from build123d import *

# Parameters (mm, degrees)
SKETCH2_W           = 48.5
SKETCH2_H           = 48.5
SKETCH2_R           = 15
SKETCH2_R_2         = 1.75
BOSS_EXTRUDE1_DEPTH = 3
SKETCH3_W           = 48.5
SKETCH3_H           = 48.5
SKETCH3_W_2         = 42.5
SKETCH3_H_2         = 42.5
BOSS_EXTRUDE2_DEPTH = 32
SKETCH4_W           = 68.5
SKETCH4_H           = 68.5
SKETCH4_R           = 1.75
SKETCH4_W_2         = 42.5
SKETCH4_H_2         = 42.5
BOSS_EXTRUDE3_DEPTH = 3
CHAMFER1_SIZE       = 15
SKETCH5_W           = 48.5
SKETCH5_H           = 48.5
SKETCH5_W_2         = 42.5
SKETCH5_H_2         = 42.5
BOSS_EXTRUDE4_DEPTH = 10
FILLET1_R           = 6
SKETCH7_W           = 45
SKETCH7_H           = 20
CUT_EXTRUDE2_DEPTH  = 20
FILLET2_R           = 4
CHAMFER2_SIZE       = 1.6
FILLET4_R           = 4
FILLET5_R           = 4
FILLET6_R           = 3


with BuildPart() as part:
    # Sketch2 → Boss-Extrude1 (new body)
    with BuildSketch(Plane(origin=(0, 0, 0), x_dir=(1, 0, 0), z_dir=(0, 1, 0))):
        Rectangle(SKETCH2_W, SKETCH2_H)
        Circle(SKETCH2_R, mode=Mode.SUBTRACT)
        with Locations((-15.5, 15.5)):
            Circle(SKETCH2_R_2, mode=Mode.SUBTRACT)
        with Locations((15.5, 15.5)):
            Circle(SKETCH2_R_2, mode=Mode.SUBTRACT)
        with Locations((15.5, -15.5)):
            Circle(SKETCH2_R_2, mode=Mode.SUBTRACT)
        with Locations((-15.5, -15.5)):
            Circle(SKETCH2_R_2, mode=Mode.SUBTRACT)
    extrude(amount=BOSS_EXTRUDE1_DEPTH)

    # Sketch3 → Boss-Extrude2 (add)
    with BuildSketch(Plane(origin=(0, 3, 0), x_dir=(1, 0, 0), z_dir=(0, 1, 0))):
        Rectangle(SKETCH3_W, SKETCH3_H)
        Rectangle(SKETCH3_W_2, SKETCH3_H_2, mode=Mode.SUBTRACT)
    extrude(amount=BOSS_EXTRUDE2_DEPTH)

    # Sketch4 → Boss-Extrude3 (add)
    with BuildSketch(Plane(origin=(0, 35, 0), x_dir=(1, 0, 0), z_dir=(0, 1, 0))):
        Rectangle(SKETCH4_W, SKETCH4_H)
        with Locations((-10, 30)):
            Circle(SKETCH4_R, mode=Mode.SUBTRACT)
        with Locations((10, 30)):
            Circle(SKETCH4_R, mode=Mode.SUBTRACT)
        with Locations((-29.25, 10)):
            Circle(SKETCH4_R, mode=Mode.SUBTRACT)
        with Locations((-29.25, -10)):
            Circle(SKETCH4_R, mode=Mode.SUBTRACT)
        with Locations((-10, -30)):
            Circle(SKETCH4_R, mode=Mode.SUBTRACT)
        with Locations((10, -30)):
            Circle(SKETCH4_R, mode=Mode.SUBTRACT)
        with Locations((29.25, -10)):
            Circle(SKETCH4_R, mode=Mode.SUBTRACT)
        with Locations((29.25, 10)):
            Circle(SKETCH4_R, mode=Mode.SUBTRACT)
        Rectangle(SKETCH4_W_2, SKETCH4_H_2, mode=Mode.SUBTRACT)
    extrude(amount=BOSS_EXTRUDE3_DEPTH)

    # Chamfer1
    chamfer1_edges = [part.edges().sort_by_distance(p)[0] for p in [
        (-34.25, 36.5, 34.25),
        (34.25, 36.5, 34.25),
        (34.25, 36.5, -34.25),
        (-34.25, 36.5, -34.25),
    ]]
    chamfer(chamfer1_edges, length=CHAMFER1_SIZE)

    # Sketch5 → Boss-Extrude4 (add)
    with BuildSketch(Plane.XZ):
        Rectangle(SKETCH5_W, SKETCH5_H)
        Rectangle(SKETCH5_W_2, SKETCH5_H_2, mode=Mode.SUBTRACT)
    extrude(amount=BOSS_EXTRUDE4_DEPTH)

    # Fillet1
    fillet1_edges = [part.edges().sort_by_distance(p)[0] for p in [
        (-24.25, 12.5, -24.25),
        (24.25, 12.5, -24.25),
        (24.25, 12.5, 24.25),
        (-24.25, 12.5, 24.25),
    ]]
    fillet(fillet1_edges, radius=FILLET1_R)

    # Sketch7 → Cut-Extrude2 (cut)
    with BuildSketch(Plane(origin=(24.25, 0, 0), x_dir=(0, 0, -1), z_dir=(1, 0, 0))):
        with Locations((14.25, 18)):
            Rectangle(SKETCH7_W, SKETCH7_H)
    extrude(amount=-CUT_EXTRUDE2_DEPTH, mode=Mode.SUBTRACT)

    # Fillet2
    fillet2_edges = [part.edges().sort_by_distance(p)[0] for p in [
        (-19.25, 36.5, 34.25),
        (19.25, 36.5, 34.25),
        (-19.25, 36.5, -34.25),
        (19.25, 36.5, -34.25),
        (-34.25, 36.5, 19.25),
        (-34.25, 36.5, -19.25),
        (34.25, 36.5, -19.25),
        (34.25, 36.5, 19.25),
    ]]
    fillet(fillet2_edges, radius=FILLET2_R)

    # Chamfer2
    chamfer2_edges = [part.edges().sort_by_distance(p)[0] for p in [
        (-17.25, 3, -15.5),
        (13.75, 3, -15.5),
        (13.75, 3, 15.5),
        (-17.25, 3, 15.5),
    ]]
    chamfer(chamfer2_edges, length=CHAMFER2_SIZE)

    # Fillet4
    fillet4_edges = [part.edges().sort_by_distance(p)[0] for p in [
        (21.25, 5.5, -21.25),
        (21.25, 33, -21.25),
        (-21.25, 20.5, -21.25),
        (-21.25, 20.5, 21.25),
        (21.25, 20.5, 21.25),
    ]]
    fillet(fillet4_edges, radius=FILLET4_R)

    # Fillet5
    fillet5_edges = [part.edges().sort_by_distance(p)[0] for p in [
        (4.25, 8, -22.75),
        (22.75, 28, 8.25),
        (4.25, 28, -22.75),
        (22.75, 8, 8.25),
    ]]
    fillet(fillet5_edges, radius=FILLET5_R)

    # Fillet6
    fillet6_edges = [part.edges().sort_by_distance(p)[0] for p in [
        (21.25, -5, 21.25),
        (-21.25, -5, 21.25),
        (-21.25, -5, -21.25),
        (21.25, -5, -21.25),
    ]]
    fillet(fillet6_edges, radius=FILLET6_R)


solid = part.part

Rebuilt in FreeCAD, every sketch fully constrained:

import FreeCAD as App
import Part
import Sketcher
from FreeCAD import Vector
Q = App.Units.Quantity


def edges_at(feature, points):
    """Names of the edges that pass closest to the given points."""
    edges = feature.Shape.Edges
    near = lambda p: min(range(len(edges)), key=lambda i: edges[i].distToShape(Part.Vertex(*p))[0])
    return sorted({f"Edge{near(p) + 1}" for p in points})

doc = App.newDocument("Part")
body = doc.addObject("PartDesign::Body", "Body")

sketch1 = doc.addObject("Sketcher::SketchObject", "Sketch")
body.addObject(sketch1)
sketch1.AttachmentSupport = (doc.XZ_Plane, [""])
sketch1.MapMode = "FlatFace"
sketch1.addGeometry(Part.LineSegment(Vector(-24.25, -24.25, 0), Vector(-24.25, 24.25, 0)), False)
sketch1.addGeometry(Part.LineSegment(Vector(-24.25, 24.25, 0), Vector(24.25, 24.25, 0)), False)
sketch1.addGeometry(Part.LineSegment(Vector(24.25, 24.25, 0), Vector(24.25, -24.25, 0)), False)
sketch1.addGeometry(Part.LineSegment(Vector(24.25, -24.25, 0), Vector(-24.25, -24.25, 0)), False)
sketch1.addGeometry(Part.Circle(Vector(-15.5, 15.5, 0), Vector(0, 0, 1), 1.75), False)
sketch1.addGeometry(Part.Circle(Vector(15.5, 15.5, 0), Vector(0, 0, 1), 1.75), False)
sketch1.addGeometry(Part.Circle(Vector(-15.5, -15.5, 0), Vector(0, 0, 1), 1.75), False)
sketch1.addGeometry(Part.Circle(Vector(0, 0, 0), Vector(0, 0, 1), 15), False)
sketch1.addGeometry(Part.Circle(Vector(15.5, -15.5, 0), Vector(0, 0, 1), 1.75), False)
sketch1.addConstraint(Sketcher.Constraint("Coincident", 0, 2, 1, 1))
sketch1.addConstraint(Sketcher.Constraint("Coincident", 1, 2, 2, 1))
sketch1.addConstraint(Sketcher.Constraint("Coincident", 2, 2, 3, 1))
sketch1.addConstraint(Sketcher.Constraint("Coincident", 3, 2, 0, 1))
sketch1.addConstraint(Sketcher.Constraint("Vertical", 0))
sketch1.addConstraint(Sketcher.Constraint("Horizontal", 1))
sketch1.addConstraint(Sketcher.Constraint("Vertical", 2))
sketch1.addConstraint(Sketcher.Constraint("Horizontal", 3))
sketch1.addConstraint(Sketcher.Constraint("Coincident", 7, 3, -1, 1))
sketch1.addConstraint(Sketcher.Constraint("Equal", 4, 5))
sketch1.addConstraint(Sketcher.Constraint("Equal", 5, 6))
sketch1.addConstraint(Sketcher.Constraint("Equal", 6, 8))
sketch1.addConstraint(Sketcher.Constraint("Symmetric", 5, 3, 6, 3, -1, 1))
sketch1.addConstraint(Sketcher.Constraint("Symmetric", 4, 3, 8, 3, -1, 1))
sketch1.addConstraint(Sketcher.Constraint("Symmetric", 0, 2, 2, 2, -1, 1))
sketch1.addConstraint(Sketcher.Constraint("Symmetric", 4, 3, 5, 3, -2))
sketch1.addConstraint(Sketcher.Constraint("Equal", 3, 0))
sketch1.addConstraint(Sketcher.Constraint("Diameter", 7, Q("30 mm")))
sketch1.addConstraint(Sketcher.Constraint("Diameter", 4, Q("3.5 mm")))
sketch1.addConstraint(Sketcher.Constraint("DistanceX", 1, 1, 1, 2, Q("48.5 mm")))
sketch1.addConstraint(Sketcher.Constraint("DistanceX", 4, 3, 5, 3, Q("31 mm")))
sketch1.addConstraint(Sketcher.Constraint("DistanceY", 6, 3, 4, 3, Q("31 mm")))
pad1 = doc.addObject("PartDesign::Pad", "Pad")
body.addObject(pad1)
pad1.Profile = sketch1
pad1.Length = 3
pad1.Reversed = True

sketch2 = doc.addObject("Sketcher::SketchObject", "Sketch001")
body.addObject(sketch2)
sketch2.AttachmentSupport = (doc.XZ_Plane, [""])
sketch2.MapMode = "FlatFace"
sketch2.AttachmentOffset = App.Placement(Vector(0, 0, -3), App.Rotation())
sketch2.addGeometry(Part.LineSegment(Vector(-24.25, -24.25, 0), Vector(-24.25, 24.25, 0)), False)
sketch2.addGeometry(Part.LineSegment(Vector(-24.25, 24.25, 0), Vector(24.25, 24.25, 0)), False)
sketch2.addGeometry(Part.LineSegment(Vector(24.25, 24.25, 0), Vector(24.25, -24.25, 0)), False)
sketch2.addGeometry(Part.LineSegment(Vector(24.25, -24.25, 0), Vector(-24.25, -24.25, 0)), False)
sketch2.addGeometry(Part.LineSegment(Vector(21.25, 21.25, 0), Vector(-21.25, 21.25, 0)), False)
sketch2.addGeometry(Part.LineSegment(Vector(-21.25, 21.25, 0), Vector(-21.25, -21.25, 0)), False)
sketch2.addGeometry(Part.LineSegment(Vector(-21.25, -21.25, 0), Vector(21.25, -21.25, 0)), False)
sketch2.addGeometry(Part.LineSegment(Vector(21.25, -21.25, 0), Vector(21.25, 21.25, 0)), False)
sketch2.addConstraint(Sketcher.Constraint("Coincident", 0, 2, 1, 1))
sketch2.addConstraint(Sketcher.Constraint("Coincident", 1, 2, 2, 1))
sketch2.addConstraint(Sketcher.Constraint("Coincident", 2, 2, 3, 1))
sketch2.addConstraint(Sketcher.Constraint("Coincident", 3, 2, 0, 1))
sketch2.addConstraint(Sketcher.Constraint("Coincident", 4, 2, 5, 1))
sketch2.addConstraint(Sketcher.Constraint("Coincident", 5, 2, 6, 1))
sketch2.addConstraint(Sketcher.Constraint("Coincident", 6, 2, 7, 1))
sketch2.addConstraint(Sketcher.Constraint("Coincident", 7, 2, 4, 1))
sketch2.addConstraint(Sketcher.Constraint("Vertical", 0))
sketch2.addConstraint(Sketcher.Constraint("Horizontal", 1))
sketch2.addConstraint(Sketcher.Constraint("Vertical", 2))
sketch2.addConstraint(Sketcher.Constraint("Horizontal", 3))
sketch2.addConstraint(Sketcher.Constraint("Horizontal", 4))
sketch2.addConstraint(Sketcher.Constraint("Vertical", 5))
sketch2.addConstraint(Sketcher.Constraint("Horizontal", 6))
sketch2.addConstraint(Sketcher.Constraint("Vertical", 7))
sketch2.addConstraint(Sketcher.Constraint("Symmetric", 0, 2, 2, 2, -1, 1))
sketch2.addConstraint(Sketcher.Constraint("Symmetric", 4, 2, 6, 2, -1, 1))
sketch2.addConstraint(Sketcher.Constraint("Equal", 3, 0))
sketch2.addConstraint(Sketcher.Constraint("Equal", 6, 5))
sketch2.addConstraint(Sketcher.Constraint("DistanceX", 1, 1, 1, 2, Q("48.5 mm")))
sketch2.addConstraint(Sketcher.Constraint("DistanceX", 4, 2, 4, 1, Q("42.5 mm")))
pad2 = doc.addObject("PartDesign::Pad", "Pad001")
body.addObject(pad2)
pad2.Profile = sketch2
pad2.Length = 32
pad2.Reversed = True

sketch3 = doc.addObject("Sketcher::SketchObject", "Sketch002")
body.addObject(sketch3)
sketch3.AttachmentSupport = (doc.XZ_Plane, [""])
sketch3.MapMode = "FlatFace"
sketch3.AttachmentOffset = App.Placement(Vector(0, 0, -35), App.Rotation())
sketch3.addGeometry(Part.LineSegment(Vector(-34.25, -34.25, 0), Vector(-34.25, 34.25, 0)), False)
sketch3.addGeometry(Part.LineSegment(Vector(-34.25, 34.25, 0), Vector(34.25, 34.25, 0)), False)
sketch3.addGeometry(Part.LineSegment(Vector(34.25, 34.25, 0), Vector(34.25, -34.25, 0)), False)
sketch3.addGeometry(Part.LineSegment(Vector(34.25, -34.25, 0), Vector(-34.25, -34.25, 0)), False)
sketch3.addGeometry(Part.Circle(Vector(-10, 30, 0), Vector(0, 0, 1), 1.75), False)
sketch3.addGeometry(Part.Circle(Vector(-29.25, 10, 0), Vector(0, 0, 1), 1.75), False)
sketch3.addGeometry(Part.Circle(Vector(10, 30, 0), Vector(0, 0, 1), 1.75), False)
sketch3.addGeometry(Part.Circle(Vector(29.25, 10, 0), Vector(0, 0, 1), 1.75), False)
sketch3.addGeometry(Part.Circle(Vector(-29.25, -10, 0), Vector(0, 0, 1), 1.75), False)
sketch3.addGeometry(Part.Circle(Vector(-10, -30, 0), Vector(0, 0, 1), 1.75), False)
sketch3.addGeometry(Part.LineSegment(Vector(21.25, 21.25, 0), Vector(-21.25, 21.25, 0)), False)
sketch3.addGeometry(Part.LineSegment(Vector(-21.25, 21.25, 0), Vector(-21.25, -21.25, 0)), False)
sketch3.addGeometry(Part.LineSegment(Vector(-21.25, -21.25, 0), Vector(21.25, -21.25, 0)), False)
sketch3.addGeometry(Part.LineSegment(Vector(21.25, -21.25, 0), Vector(21.25, 21.25, 0)), False)
sketch3.addGeometry(Part.Circle(Vector(29.25, -10, 0), Vector(0, 0, 1), 1.75), False)
sketch3.addGeometry(Part.Circle(Vector(10, -30, 0), Vector(0, 0, 1), 1.75), False)
sketch3.addConstraint(Sketcher.Constraint("Coincident", 0, 2, 1, 1))
sketch3.addConstraint(Sketcher.Constraint("Coincident", 1, 2, 2, 1))
sketch3.addConstraint(Sketcher.Constraint("Coincident", 2, 2, 3, 1))
sketch3.addConstraint(Sketcher.Constraint("Coincident", 3, 2, 0, 1))
sketch3.addConstraint(Sketcher.Constraint("Coincident", 10, 2, 11, 1))
sketch3.addConstraint(Sketcher.Constraint("Coincident", 11, 2, 12, 1))
sketch3.addConstraint(Sketcher.Constraint("Coincident", 12, 2, 13, 1))
sketch3.addConstraint(Sketcher.Constraint("Coincident", 13, 2, 10, 1))
sketch3.addConstraint(Sketcher.Constraint("Vertical", 0))
sketch3.addConstraint(Sketcher.Constraint("Horizontal", 1))
sketch3.addConstraint(Sketcher.Constraint("Vertical", 2))
sketch3.addConstraint(Sketcher.Constraint("Horizontal", 3))
sketch3.addConstraint(Sketcher.Constraint("Horizontal", 10))
sketch3.addConstraint(Sketcher.Constraint("Vertical", 11))
sketch3.addConstraint(Sketcher.Constraint("Horizontal", 12))
sketch3.addConstraint(Sketcher.Constraint("Vertical", 13))
sketch3.addConstraint(Sketcher.Constraint("Equal", 4, 5))
sketch3.addConstraint(Sketcher.Constraint("Equal", 5, 6))
sketch3.addConstraint(Sketcher.Constraint("Equal", 6, 7))
sketch3.addConstraint(Sketcher.Constraint("Equal", 7, 8))
sketch3.addConstraint(Sketcher.Constraint("Equal", 8, 9))
sketch3.addConstraint(Sketcher.Constraint("Equal", 9, 14))
sketch3.addConstraint(Sketcher.Constraint("Equal", 14, 15))
sketch3.addConstraint(Sketcher.Constraint("Symmetric", 7, 3, 8, 3, -1, 1))
sketch3.addConstraint(Sketcher.Constraint("Symmetric", 6, 3, 9, 3, -1, 1))
sketch3.addConstraint(Sketcher.Constraint("Symmetric", 5, 3, 14, 3, -1, 1))
sketch3.addConstraint(Sketcher.Constraint("Symmetric", 4, 3, 15, 3, -1, 1))
sketch3.addConstraint(Sketcher.Constraint("Symmetric", 0, 2, 2, 2, -1, 1))
sketch3.addConstraint(Sketcher.Constraint("Symmetric", 10, 2, 12, 2, -1, 1))
sketch3.addConstraint(Sketcher.Constraint("Symmetric", 4, 3, 6, 3, -2))
sketch3.addConstraint(Sketcher.Constraint("Symmetric", 5, 3, 7, 3, -2))
sketch3.addConstraint(Sketcher.Constraint("Equal", 3, 0))
sketch3.addConstraint(Sketcher.Constraint("Equal", 12, 11))
sketch3.addConstraint(Sketcher.Constraint("Diameter", 4, Q("3.5 mm")))
sketch3.addConstraint(Sketcher.Constraint("DistanceX", 1, 1, 1, 2, Q("68.5 mm")))
sketch3.addConstraint(Sketcher.Constraint("DistanceX", 10, 2, 10, 1, Q("42.5 mm")))
sketch3.addConstraint(Sketcher.Constraint("DistanceX", 4, 3, -1, 1, Q("10 mm")))
sketch3.addConstraint(Sketcher.Constraint("DistanceY", -1, 1, 4, 3, Q("30 mm")))
sketch3.addConstraint(Sketcher.Constraint("DistanceY", -1, 1, 5, 3, Q("10 mm")))
sketch3.addConstraint(Sketcher.Constraint("DistanceX", 0, 2, 5, 3, Q("5 mm")))
pad3 = doc.addObject("PartDesign::Pad", "Pad002")
body.addObject(pad3)
pad3.Profile = sketch3
pad3.Length = 3
pad3.Reversed = True
doc.recompute()

chamfer = doc.addObject("PartDesign::Chamfer", "Chamfer")
body.addObject(chamfer)
chamfer.Base = (pad3, edges_at(pad3, [
    (-34.25, 36.5, 34.25),
    (34.25, 36.5, 34.25),
    (34.25, 36.5, -34.25),
    (-34.25, 36.5, -34.25),
]))
chamfer.Size = 15

sketch4 = doc.addObject("Sketcher::SketchObject", "Sketch003")
body.addObject(sketch4)
sketch4.AttachmentSupport = (doc.XZ_Plane, [""])
sketch4.MapMode = "FlatFace"
sketch4.addGeometry(Part.LineSegment(Vector(-24.25, 24.25, 0), Vector(-24.25, -24.25, 0)), False)
sketch4.addGeometry(Part.LineSegment(Vector(-24.25, -24.25, 0), Vector(24.25, -24.25, 0)), False)
sketch4.addGeometry(Part.LineSegment(Vector(24.25, -24.25, 0), Vector(24.25, 24.25, 0)), False)
sketch4.addGeometry(Part.LineSegment(Vector(24.25, 24.25, 0), Vector(-24.25, 24.25, 0)), False)
sketch4.addGeometry(Part.LineSegment(Vector(21.25, -21.25, 0), Vector(-21.25, -21.25, 0)), False)
sketch4.addGeometry(Part.LineSegment(Vector(-21.25, -21.25, 0), Vector(-21.25, 21.25, 0)), False)
sketch4.addGeometry(Part.LineSegment(Vector(-21.25, 21.25, 0), Vector(21.25, 21.25, 0)), False)
sketch4.addGeometry(Part.LineSegment(Vector(21.25, 21.25, 0), Vector(21.25, -21.25, 0)), False)
sketch4.addConstraint(Sketcher.Constraint("Coincident", 0, 2, 1, 1))
sketch4.addConstraint(Sketcher.Constraint("Coincident", 1, 2, 2, 1))
sketch4.addConstraint(Sketcher.Constraint("Coincident", 2, 2, 3, 1))
sketch4.addConstraint(Sketcher.Constraint("Coincident", 3, 2, 0, 1))
sketch4.addConstraint(Sketcher.Constraint("Coincident", 4, 2, 5, 1))
sketch4.addConstraint(Sketcher.Constraint("Coincident", 5, 2, 6, 1))
sketch4.addConstraint(Sketcher.Constraint("Coincident", 6, 2, 7, 1))
sketch4.addConstraint(Sketcher.Constraint("Coincident", 7, 2, 4, 1))
sketch4.addConstraint(Sketcher.Constraint("Vertical", 0))
sketch4.addConstraint(Sketcher.Constraint("Horizontal", 1))
sketch4.addConstraint(Sketcher.Constraint("Vertical", 2))
sketch4.addConstraint(Sketcher.Constraint("Horizontal", 3))
sketch4.addConstraint(Sketcher.Constraint("Horizontal", 4))
sketch4.addConstraint(Sketcher.Constraint("Vertical", 5))
sketch4.addConstraint(Sketcher.Constraint("Horizontal", 6))
sketch4.addConstraint(Sketcher.Constraint("Vertical", 7))
sketch4.addConstraint(Sketcher.Constraint("Symmetric", 0, 2, 2, 2, -1, 1))
sketch4.addConstraint(Sketcher.Constraint("Symmetric", 4, 2, 6, 2, -1, 1))
sketch4.addConstraint(Sketcher.Constraint("Equal", 3, 0))
sketch4.addConstraint(Sketcher.Constraint("Equal", 6, 5))
sketch4.addConstraint(Sketcher.Constraint("DistanceX", 1, 1, 1, 2, Q("48.5 mm")))
sketch4.addConstraint(Sketcher.Constraint("DistanceX", 4, 2, 4, 1, Q("42.5 mm")))
pad4 = doc.addObject("PartDesign::Pad", "Pad003")
body.addObject(pad4)
pad4.Profile = sketch4
pad4.Length = 10
doc.recompute()

fillet = doc.addObject("PartDesign::Fillet", "Fillet")
body.addObject(fillet)
fillet.Base = (pad4, edges_at(pad4, [
    (-24.25, 12.5, -24.25),
    (24.25, 12.5, -24.25),
    (24.25, 12.5, 24.25),
    (-24.25, 12.5, 24.25),
]))
fillet.Radius = 6

sketch5 = doc.addObject("Sketcher::SketchObject", "Sketch004")
body.addObject(sketch5)
sketch5.AttachmentSupport = (doc.YZ_Plane, [""])
sketch5.MapMode = "FlatFace"
sketch5.AttachmentOffset = App.Placement(Vector(0, 0, 24.25), App.Rotation())
sketch5.addGeometry(Part.LineSegment(Vector(28, 8.25, 0), Vector(8, 8.25, 0)), False)
sketch5.addGeometry(Part.LineSegment(Vector(8, 8.25, 0), Vector(8, -36.75, 0)), False)
sketch5.addGeometry(Part.LineSegment(Vector(8, -36.75, 0), Vector(28, -36.75, 0)), False)
sketch5.addGeometry(Part.LineSegment(Vector(28, -36.75, 0), Vector(28, 8.25, 0)), False)
sketch5.addConstraint(Sketcher.Constraint("Coincident", 0, 2, 1, 1))
sketch5.addConstraint(Sketcher.Constraint("Coincident", 1, 2, 2, 1))
sketch5.addConstraint(Sketcher.Constraint("Coincident", 2, 2, 3, 1))
sketch5.addConstraint(Sketcher.Constraint("Coincident", 3, 2, 0, 1))
sketch5.addConstraint(Sketcher.Constraint("Horizontal", 0))
sketch5.addConstraint(Sketcher.Constraint("Vertical", 1))
sketch5.addConstraint(Sketcher.Constraint("Horizontal", 2))
sketch5.addConstraint(Sketcher.Constraint("Vertical", 3))
sketch5.addConstraint(Sketcher.Constraint("DistanceX", 0, 2, 0, 1, Q("20 mm")))
sketch5.addConstraint(Sketcher.Constraint("DistanceY", 1, 2, 1, 1, Q("45 mm")))
sketch5.addConstraint(Sketcher.Constraint("DistanceX", -1, 1, 0, 2, Q("8 mm")))
sketch5.addConstraint(Sketcher.Constraint("DistanceY", -1, 1, 0, 2, Q("8.25 mm")))
pocket1 = doc.addObject("PartDesign::Pocket", "Pocket")
body.addObject(pocket1)
pocket1.Profile = sketch5
pocket1.Length = 20
doc.recompute()

fillet2 = doc.addObject("PartDesign::Fillet", "Fillet001")
body.addObject(fillet2)
fillet2.Base = (pocket1, edges_at(pocket1, [
    (-19.25, 36.5, 34.25),
    (19.25, 36.5, 34.25),
    (-19.25, 36.5, -34.25),
    (19.25, 36.5, -34.25),
    (-34.25, 36.5, 19.25),
    (-34.25, 36.5, -19.25),
    (34.25, 36.5, -19.25),
    (34.25, 36.5, 19.25),
]))
fillet2.Radius = 4
doc.recompute()

chamfer2 = doc.addObject("PartDesign::Chamfer", "Chamfer001")
body.addObject(chamfer2)
chamfer2.Base = (fillet2, edges_at(fillet2, [
    (-17.25, 3, -15.5),
    (13.75, 3, -15.5),
    (13.75, 3, 15.5),
    (-17.25, 3, 15.5),
]))
chamfer2.Size = 1.6
doc.recompute()

fillet3 = doc.addObject("PartDesign::Fillet", "Fillet002")
body.addObject(fillet3)
fillet3.Base = (chamfer2, edges_at(chamfer2, [
    (21.25, 5.5, -21.25),
    (21.25, 33, -21.25),
    (-21.25, 20.5, -21.25),
    (-21.25, 20.5, 21.25),
    (21.25, 20.5, 21.25),
]))
fillet3.Radius = 4
doc.recompute()

fillet4 = doc.addObject("PartDesign::Fillet", "Fillet003")
body.addObject(fillet4)
fillet4.Base = (fillet3, edges_at(fillet3, [
    (4.25, 8, -22.75),
    (22.75, 28, 8.25),
    (4.25, 28, -22.75),
    (22.75, 8, 8.25),
]))
fillet4.Radius = 4
doc.recompute()

fillet5 = doc.addObject("PartDesign::Fillet", "Fillet004")
body.addObject(fillet5)
fillet5.Base = (fillet4, edges_at(fillet4, [
    (21.25, -5, 21.25),
    (-21.25, -5, 21.25),
    (-21.25, -5, -21.25),
    (21.25, -5, -21.25),
]))
fillet5.Radius = 3

doc.recompute()
